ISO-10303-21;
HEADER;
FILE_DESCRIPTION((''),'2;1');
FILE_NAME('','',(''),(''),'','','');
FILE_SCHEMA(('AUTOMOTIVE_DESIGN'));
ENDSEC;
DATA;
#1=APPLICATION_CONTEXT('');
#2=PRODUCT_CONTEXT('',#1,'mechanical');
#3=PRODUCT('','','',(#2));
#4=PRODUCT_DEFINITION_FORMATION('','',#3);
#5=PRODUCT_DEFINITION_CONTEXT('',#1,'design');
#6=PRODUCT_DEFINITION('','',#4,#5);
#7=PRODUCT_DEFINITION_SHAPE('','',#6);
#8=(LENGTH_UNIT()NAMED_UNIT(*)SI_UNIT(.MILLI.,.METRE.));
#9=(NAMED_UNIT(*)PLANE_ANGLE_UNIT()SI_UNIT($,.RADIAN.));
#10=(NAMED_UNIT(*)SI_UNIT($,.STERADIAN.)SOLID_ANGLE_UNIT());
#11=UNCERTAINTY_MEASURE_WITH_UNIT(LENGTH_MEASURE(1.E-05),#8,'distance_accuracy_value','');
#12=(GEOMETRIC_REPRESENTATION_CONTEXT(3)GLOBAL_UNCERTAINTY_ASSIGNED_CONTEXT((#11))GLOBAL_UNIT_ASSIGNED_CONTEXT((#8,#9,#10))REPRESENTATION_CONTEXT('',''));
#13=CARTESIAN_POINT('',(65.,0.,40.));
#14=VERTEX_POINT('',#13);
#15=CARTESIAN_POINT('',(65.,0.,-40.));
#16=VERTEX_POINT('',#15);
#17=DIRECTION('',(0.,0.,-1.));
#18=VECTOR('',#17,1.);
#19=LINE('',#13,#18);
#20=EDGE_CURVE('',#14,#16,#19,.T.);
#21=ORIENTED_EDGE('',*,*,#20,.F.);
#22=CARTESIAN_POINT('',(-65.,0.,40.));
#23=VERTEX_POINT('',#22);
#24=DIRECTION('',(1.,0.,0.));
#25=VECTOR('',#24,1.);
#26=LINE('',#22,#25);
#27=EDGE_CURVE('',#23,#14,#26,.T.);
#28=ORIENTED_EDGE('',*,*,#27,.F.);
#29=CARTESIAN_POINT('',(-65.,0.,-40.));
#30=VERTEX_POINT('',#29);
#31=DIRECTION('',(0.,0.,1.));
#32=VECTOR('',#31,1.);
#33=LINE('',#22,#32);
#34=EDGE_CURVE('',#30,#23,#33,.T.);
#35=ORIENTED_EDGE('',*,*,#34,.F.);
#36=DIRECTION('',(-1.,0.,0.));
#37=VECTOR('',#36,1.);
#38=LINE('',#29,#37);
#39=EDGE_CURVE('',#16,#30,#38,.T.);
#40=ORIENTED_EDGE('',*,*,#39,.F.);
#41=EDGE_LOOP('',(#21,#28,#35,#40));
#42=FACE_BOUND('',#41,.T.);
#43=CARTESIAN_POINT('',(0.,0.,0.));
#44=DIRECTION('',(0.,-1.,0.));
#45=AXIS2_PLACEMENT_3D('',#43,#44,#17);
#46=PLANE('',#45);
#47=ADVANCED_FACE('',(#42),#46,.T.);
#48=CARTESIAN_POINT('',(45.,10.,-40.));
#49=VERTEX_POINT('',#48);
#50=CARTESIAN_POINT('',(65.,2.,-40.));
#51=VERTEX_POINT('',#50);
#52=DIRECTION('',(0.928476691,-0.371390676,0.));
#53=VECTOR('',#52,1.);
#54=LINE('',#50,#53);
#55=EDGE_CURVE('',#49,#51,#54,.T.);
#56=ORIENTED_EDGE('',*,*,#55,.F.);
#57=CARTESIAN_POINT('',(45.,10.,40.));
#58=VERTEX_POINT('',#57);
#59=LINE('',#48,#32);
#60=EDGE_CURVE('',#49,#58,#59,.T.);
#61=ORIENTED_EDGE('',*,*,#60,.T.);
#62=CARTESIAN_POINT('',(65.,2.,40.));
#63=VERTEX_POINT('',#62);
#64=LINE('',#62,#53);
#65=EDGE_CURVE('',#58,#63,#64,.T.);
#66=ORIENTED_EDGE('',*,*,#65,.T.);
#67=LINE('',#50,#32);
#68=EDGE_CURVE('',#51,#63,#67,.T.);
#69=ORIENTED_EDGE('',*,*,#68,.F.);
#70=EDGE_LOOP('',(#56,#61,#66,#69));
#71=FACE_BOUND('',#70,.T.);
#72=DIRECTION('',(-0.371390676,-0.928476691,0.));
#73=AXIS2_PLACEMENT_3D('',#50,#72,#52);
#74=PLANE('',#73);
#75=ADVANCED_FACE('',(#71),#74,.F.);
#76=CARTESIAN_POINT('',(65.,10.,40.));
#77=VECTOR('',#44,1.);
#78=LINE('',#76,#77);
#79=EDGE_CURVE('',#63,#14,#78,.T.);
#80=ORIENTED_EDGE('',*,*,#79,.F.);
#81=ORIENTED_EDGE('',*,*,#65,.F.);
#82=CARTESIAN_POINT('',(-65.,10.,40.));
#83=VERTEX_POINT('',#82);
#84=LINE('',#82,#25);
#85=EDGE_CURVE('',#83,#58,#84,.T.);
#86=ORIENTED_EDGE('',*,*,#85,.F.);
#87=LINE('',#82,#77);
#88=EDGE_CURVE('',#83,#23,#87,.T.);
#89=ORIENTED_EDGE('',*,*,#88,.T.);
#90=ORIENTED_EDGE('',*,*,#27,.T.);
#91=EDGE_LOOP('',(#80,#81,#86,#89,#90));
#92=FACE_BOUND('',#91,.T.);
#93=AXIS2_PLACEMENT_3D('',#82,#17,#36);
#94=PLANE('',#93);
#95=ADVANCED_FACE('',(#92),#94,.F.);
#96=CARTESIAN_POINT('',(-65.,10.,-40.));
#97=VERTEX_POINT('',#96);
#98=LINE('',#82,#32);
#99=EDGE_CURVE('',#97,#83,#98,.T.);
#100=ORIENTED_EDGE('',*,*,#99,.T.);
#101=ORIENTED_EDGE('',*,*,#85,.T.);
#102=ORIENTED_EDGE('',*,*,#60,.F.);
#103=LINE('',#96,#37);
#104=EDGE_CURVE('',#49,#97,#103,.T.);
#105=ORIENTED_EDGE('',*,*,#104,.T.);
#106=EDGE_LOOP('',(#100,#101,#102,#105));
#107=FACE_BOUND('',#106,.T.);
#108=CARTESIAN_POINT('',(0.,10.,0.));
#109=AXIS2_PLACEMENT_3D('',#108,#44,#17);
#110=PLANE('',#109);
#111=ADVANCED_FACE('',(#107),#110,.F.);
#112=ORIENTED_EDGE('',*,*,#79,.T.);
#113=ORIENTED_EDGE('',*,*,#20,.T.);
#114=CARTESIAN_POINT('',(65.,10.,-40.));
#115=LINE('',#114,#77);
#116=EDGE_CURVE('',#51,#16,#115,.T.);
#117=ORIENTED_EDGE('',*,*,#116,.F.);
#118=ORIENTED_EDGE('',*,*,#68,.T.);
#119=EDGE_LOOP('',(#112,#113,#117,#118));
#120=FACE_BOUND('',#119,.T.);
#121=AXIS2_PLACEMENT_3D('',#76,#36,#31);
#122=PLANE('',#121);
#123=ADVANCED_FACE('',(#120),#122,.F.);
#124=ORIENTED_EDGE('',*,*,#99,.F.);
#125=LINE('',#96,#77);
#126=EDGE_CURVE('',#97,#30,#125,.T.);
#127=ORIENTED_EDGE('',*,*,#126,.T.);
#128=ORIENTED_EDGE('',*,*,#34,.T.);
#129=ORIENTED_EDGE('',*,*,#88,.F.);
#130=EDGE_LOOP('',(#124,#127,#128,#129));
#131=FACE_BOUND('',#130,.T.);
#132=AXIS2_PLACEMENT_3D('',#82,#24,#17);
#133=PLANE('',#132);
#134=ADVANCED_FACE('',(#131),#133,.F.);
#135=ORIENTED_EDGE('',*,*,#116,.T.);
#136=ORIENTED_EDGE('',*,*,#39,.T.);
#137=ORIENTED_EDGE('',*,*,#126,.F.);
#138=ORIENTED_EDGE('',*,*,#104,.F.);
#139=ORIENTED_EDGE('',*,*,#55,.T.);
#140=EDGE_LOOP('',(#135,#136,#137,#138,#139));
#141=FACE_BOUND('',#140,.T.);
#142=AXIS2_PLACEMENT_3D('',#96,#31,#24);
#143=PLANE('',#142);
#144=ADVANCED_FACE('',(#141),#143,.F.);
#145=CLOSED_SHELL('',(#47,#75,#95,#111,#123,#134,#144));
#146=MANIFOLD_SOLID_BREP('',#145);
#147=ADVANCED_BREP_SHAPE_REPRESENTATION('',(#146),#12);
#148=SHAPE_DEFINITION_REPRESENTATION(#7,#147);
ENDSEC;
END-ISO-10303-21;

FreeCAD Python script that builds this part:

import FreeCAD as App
import Part
import Sketcher
from FreeCAD import Vector
Q = App.Units.Quantity

doc = App.newDocument("Part")
params = doc.addObject("Spreadsheet::Sheet", "Params")
for row, (alias, value) in enumerate([
    ("sketch1_width", "130 mm"),
    ("sketch1_height", "80 mm"),
    ("pad1_length", "10 mm"),
    ("sketch2_width", "20 mm"),
    ("sketch2_height", "8 mm"),
], start=1):
    params.set(f"A{row}", alias)
    params.set(f"B{row}", "=" + value)
    params.setAlias(f"B{row}", alias)

body = doc.addObject("PartDesign::Body", "Body")

sketch1 = body.newObject("Sketcher::SketchObject", "Sketch")
sketch1.AttachmentSupport = (doc.getObject("XZ_Plane"), [""])
sketch1.MapMode = "FlatFace"
sketch1.addGeometry([
    Part.LineSegment(Vector(-65, -40, 0), Vector(-65, 40, 0)),
    Part.LineSegment(Vector(-65, 40, 0), Vector(65, 40, 0)),
    Part.LineSegment(Vector(65, 40, 0), Vector(65, -40, 0)),
    Part.LineSegment(Vector(65, -40, 0), Vector(-65, -40, 0)),
], False)
sketch1.addConstraint([
    Sketcher.Constraint("Coincident", 0, 2, 1, 1),
    Sketcher.Constraint("Coincident", 1, 2, 2, 1),
    Sketcher.Constraint("Coincident", 2, 2, 3, 1),
    Sketcher.Constraint("Coincident", 3, 2, 0, 1),
    Sketcher.Constraint("Vertical", 0),
    Sketcher.Constraint("Horizontal", 1),
    Sketcher.Constraint("Vertical", 2),
    Sketcher.Constraint("Horizontal", 3),
    Sketcher.Constraint("Symmetric", 0, 2, 2, 2, -1, 1),
    Sketcher.Constraint("DistanceX", 1, 1, 1, 2, Q("130 mm")),
    Sketcher.Constraint("DistanceY", 0, 1, 0, 2, Q("80 mm")),
])
sketch1.setExpression("Constraints[9]", "Params.sketch1_width")
sketch1.setExpression("Constraints[10]", "Params.sketch1_height")
pad1 = body.newObject("PartDesign::Pad", "Pad")
pad1.Profile = sketch1
pad1.setExpression("Length", "Params.pad1_length")
pad1.Reversed = True

sketch2 = body.newObject("Sketcher::SketchObject", "Sketch001")
sketch2.AttachmentSupport = (doc.getObject("XY_Plane"), [""])
sketch2.MapMode = "FlatFace"
sketch2.AttachmentOffset = App.Placement(Vector(0, 0, 40), App.Rotation())
sketch2.addGeometry([
    Part.LineSegment(Vector(45, 10, 0), Vector(65, 2, 0)),
    Part.LineSegment(Vector(65, 2, 0), Vector(65, 10, 0)),
    Part.LineSegment(Vector(65, 10, 0), Vector(45, 10, 0)),
], False)
sketch2.addConstraint([
    Sketcher.Constraint("Coincident", 0, 2, 1, 1),
    Sketcher.Constraint("Coincident", 1, 2, 2, 1),
    Sketcher.Constraint("Coincident", 2, 2, 0, 1),
    Sketcher.Constraint("Vertical", 1),
    Sketcher.Constraint("Horizontal", 2),
    Sketcher.Constraint("DistanceX", 2, 2, 2, 1, Q("20 mm")),
    Sketcher.Constraint("DistanceY", 1, 1, 1, 2, Q("8 mm")),
    Sketcher.Constraint("DistanceX", -1, 1, 0, 2, Q("65 mm")),
    Sketcher.Constraint("DistanceY", -1, 1, 0, 2, Q("2 mm")),
])
sketch2.setExpression("Constraints[5]", "Params.sketch2_width")
sketch2.setExpression("Constraints[6]", "Params.sketch2_height")
pocket1 = body.newObject("PartDesign::Pocket", "Pocket")
pocket1.Profile = sketch2
pocket1.Type = "ThroughAll"

doc.recompute()
